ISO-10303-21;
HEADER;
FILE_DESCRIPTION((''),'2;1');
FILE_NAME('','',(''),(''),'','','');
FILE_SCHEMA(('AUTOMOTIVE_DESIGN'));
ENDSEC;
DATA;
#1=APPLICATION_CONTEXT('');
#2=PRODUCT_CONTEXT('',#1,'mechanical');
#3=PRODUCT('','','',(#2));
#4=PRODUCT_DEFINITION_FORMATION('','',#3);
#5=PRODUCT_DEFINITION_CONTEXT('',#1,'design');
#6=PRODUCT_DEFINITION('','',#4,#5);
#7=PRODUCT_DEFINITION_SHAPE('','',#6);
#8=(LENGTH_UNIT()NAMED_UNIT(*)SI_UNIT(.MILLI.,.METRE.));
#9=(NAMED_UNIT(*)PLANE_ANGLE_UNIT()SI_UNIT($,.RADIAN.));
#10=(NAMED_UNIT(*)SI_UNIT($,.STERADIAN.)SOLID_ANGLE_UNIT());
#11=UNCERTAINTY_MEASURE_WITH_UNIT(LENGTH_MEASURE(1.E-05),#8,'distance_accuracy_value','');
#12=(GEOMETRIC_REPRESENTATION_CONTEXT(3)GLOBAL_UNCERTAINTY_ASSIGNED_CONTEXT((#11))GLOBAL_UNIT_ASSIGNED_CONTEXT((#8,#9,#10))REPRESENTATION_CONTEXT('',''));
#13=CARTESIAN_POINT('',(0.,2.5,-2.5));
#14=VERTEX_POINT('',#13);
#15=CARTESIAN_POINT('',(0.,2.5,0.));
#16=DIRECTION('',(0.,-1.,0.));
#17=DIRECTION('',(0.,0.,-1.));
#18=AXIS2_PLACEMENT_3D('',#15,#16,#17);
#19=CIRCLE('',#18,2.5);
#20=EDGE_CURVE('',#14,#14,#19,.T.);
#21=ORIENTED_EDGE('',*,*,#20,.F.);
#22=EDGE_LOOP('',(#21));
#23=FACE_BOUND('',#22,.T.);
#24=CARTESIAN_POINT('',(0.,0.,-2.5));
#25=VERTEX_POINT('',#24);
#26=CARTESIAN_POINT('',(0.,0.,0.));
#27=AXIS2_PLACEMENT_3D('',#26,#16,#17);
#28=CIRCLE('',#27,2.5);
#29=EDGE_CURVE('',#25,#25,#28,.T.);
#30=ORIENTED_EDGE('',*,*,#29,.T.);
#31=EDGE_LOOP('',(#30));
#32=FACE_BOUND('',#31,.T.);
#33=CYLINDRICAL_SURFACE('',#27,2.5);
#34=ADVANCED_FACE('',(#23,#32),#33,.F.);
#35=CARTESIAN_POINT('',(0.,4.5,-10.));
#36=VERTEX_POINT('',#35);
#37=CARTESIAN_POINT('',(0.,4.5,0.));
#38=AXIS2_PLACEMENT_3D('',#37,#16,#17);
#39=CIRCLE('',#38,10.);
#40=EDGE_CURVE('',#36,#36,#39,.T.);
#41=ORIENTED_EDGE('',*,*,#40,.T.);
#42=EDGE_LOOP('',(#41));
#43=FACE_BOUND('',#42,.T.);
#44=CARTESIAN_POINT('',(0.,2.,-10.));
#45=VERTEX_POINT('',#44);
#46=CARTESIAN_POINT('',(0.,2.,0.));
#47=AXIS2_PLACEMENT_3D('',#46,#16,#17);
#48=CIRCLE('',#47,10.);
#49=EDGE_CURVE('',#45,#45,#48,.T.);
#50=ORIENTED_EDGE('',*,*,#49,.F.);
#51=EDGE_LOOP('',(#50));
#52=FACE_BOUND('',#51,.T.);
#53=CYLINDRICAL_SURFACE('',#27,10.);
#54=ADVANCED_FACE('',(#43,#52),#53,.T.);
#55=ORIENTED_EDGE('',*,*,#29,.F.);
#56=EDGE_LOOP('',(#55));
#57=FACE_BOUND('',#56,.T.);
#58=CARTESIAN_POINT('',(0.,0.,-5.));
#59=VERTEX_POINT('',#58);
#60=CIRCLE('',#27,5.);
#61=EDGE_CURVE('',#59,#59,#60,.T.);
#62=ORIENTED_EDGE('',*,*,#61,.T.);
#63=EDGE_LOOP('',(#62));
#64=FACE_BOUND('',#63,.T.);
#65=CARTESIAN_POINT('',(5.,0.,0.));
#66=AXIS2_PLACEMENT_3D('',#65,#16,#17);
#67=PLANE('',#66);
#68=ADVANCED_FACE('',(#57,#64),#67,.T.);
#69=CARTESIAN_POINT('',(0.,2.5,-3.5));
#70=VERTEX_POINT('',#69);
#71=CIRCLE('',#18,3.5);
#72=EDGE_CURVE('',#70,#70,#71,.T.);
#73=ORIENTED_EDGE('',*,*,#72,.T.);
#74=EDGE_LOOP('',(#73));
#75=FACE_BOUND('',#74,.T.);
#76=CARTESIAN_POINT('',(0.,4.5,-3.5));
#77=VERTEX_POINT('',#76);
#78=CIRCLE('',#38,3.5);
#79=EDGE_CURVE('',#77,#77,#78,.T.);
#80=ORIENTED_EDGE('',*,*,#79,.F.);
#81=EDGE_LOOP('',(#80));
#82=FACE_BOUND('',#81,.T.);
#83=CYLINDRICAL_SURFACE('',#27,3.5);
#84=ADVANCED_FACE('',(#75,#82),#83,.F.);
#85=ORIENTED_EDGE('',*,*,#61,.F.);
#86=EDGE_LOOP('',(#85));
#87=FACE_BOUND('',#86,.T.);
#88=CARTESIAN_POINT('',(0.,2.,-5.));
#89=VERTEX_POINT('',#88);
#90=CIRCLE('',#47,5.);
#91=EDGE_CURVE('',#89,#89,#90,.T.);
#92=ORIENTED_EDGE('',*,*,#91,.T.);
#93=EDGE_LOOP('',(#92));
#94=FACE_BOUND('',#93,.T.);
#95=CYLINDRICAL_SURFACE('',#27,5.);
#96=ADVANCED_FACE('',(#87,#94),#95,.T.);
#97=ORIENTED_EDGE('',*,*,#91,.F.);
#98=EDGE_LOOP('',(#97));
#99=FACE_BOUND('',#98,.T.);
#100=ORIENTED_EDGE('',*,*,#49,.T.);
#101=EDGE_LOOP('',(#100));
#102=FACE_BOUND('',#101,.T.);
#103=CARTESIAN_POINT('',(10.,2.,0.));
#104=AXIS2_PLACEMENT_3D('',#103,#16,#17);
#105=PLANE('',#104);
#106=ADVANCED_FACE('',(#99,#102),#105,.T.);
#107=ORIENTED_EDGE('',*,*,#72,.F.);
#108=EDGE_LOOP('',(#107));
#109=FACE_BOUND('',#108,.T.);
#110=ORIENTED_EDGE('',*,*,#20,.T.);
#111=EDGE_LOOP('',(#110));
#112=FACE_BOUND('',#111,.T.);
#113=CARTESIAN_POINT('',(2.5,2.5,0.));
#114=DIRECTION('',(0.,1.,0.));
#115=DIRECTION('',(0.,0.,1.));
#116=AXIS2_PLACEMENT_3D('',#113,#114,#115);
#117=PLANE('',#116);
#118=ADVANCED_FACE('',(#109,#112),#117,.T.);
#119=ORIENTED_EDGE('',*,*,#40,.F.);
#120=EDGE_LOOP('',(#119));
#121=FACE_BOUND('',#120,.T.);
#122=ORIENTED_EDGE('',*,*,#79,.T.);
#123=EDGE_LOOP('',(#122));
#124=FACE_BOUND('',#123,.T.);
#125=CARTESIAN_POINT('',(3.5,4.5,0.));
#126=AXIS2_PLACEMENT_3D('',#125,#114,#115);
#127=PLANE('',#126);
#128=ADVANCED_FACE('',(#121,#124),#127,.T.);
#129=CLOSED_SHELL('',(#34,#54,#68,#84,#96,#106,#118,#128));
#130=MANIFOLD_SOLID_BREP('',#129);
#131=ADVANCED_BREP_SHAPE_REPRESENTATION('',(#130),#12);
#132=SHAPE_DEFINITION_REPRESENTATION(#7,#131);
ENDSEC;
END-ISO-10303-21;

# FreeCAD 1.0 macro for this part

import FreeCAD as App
import Part
import Sketcher

V = App.Vector

doc = App.newDocument("Part")
body = doc.addObject("PartDesign::Body", "Body")

# Sketch on XY plane
sketch1 = body.newObject("Sketcher::SketchObject", "Sketch")
sketch1.AttachmentSupport = (doc.getObject("XY_Plane"), [""])
sketch1.MapMode = "FlatFace"
sketch1.addGeometry([
    Part.LineSegment(V(3.5, 2.5, 0), V(2.5, 2.5, 0)),  # 0
    Part.LineSegment(V(2.5, 2.5, 0), V(2.5, 0, 0)),  # 1
    Part.LineSegment(V(2.5, 0, 0), V(5, 0, 0)),  # 2
    Part.LineSegment(V(5, 0, 0), V(5, 2, 0)),  # 3
    Part.LineSegment(V(5, 2, 0), V(10, 2, 0)),  # 4
    Part.LineSegment(V(10, 2, 0), V(10, 4.5, 0)),  # 5
    Part.LineSegment(V(10, 4.5, 0), V(3.5, 4.5, 0)),  # 6
    Part.LineSegment(V(3.5, 4.5, 0), V(3.5, 2.5, 0)),  # 7
], False)
sketch1.addConstraint([
    Sketcher.Constraint("Coincident", 0, 2, 1, 1),
    Sketcher.Constraint("Coincident", 1, 2, 2, 1),
    Sketcher.Constraint("Coincident", 2, 2, 3, 1),
    Sketcher.Constraint("Coincident", 3, 2, 4, 1),
    Sketcher.Constraint("Coincident", 4, 2, 5, 1),
    Sketcher.Constraint("Coincident", 5, 2, 6, 1),
    Sketcher.Constraint("Coincident", 6, 2, 7, 1),
    Sketcher.Constraint("Coincident", 7, 2, 0, 1),
    Sketcher.Constraint("Horizontal", 0),
    Sketcher.Constraint("Vertical", 1),
    Sketcher.Constraint("Horizontal", 2),
    Sketcher.Constraint("Vertical", 3),
    Sketcher.Constraint("Horizontal", 4),
    Sketcher.Constraint("Vertical", 5),
    Sketcher.Constraint("Horizontal", 6),
    Sketcher.Constraint("Vertical", 7),
    Sketcher.Constraint("PointOnObject", 1, 2, -1),
    Sketcher.Constraint("Equal", 2, 1),
    Sketcher.Constraint("Equal", 1, 5),
    Sketcher.Constraint("DistanceX", 0, 2, 0, 1, 1.0),
    Sketcher.Constraint("DistanceX", 4, 1, 4, 2, 5.0),
    Sketcher.Constraint("DistanceY", 3, 1, 3, 2, 2.0),
    Sketcher.Constraint("DistanceX", 2, 1, 2, 2, 2.5),
    Sketcher.Constraint("DistanceX", -1, 1, 2, 2, 5.0),
])
revolution = body.newObject("PartDesign::Revolution", "Revolution")
revolution.Profile = sketch1
revolution.ReferenceAxis = (sketch1, ["V_Axis"])
revolution.Angle = 360

doc.recompute()
